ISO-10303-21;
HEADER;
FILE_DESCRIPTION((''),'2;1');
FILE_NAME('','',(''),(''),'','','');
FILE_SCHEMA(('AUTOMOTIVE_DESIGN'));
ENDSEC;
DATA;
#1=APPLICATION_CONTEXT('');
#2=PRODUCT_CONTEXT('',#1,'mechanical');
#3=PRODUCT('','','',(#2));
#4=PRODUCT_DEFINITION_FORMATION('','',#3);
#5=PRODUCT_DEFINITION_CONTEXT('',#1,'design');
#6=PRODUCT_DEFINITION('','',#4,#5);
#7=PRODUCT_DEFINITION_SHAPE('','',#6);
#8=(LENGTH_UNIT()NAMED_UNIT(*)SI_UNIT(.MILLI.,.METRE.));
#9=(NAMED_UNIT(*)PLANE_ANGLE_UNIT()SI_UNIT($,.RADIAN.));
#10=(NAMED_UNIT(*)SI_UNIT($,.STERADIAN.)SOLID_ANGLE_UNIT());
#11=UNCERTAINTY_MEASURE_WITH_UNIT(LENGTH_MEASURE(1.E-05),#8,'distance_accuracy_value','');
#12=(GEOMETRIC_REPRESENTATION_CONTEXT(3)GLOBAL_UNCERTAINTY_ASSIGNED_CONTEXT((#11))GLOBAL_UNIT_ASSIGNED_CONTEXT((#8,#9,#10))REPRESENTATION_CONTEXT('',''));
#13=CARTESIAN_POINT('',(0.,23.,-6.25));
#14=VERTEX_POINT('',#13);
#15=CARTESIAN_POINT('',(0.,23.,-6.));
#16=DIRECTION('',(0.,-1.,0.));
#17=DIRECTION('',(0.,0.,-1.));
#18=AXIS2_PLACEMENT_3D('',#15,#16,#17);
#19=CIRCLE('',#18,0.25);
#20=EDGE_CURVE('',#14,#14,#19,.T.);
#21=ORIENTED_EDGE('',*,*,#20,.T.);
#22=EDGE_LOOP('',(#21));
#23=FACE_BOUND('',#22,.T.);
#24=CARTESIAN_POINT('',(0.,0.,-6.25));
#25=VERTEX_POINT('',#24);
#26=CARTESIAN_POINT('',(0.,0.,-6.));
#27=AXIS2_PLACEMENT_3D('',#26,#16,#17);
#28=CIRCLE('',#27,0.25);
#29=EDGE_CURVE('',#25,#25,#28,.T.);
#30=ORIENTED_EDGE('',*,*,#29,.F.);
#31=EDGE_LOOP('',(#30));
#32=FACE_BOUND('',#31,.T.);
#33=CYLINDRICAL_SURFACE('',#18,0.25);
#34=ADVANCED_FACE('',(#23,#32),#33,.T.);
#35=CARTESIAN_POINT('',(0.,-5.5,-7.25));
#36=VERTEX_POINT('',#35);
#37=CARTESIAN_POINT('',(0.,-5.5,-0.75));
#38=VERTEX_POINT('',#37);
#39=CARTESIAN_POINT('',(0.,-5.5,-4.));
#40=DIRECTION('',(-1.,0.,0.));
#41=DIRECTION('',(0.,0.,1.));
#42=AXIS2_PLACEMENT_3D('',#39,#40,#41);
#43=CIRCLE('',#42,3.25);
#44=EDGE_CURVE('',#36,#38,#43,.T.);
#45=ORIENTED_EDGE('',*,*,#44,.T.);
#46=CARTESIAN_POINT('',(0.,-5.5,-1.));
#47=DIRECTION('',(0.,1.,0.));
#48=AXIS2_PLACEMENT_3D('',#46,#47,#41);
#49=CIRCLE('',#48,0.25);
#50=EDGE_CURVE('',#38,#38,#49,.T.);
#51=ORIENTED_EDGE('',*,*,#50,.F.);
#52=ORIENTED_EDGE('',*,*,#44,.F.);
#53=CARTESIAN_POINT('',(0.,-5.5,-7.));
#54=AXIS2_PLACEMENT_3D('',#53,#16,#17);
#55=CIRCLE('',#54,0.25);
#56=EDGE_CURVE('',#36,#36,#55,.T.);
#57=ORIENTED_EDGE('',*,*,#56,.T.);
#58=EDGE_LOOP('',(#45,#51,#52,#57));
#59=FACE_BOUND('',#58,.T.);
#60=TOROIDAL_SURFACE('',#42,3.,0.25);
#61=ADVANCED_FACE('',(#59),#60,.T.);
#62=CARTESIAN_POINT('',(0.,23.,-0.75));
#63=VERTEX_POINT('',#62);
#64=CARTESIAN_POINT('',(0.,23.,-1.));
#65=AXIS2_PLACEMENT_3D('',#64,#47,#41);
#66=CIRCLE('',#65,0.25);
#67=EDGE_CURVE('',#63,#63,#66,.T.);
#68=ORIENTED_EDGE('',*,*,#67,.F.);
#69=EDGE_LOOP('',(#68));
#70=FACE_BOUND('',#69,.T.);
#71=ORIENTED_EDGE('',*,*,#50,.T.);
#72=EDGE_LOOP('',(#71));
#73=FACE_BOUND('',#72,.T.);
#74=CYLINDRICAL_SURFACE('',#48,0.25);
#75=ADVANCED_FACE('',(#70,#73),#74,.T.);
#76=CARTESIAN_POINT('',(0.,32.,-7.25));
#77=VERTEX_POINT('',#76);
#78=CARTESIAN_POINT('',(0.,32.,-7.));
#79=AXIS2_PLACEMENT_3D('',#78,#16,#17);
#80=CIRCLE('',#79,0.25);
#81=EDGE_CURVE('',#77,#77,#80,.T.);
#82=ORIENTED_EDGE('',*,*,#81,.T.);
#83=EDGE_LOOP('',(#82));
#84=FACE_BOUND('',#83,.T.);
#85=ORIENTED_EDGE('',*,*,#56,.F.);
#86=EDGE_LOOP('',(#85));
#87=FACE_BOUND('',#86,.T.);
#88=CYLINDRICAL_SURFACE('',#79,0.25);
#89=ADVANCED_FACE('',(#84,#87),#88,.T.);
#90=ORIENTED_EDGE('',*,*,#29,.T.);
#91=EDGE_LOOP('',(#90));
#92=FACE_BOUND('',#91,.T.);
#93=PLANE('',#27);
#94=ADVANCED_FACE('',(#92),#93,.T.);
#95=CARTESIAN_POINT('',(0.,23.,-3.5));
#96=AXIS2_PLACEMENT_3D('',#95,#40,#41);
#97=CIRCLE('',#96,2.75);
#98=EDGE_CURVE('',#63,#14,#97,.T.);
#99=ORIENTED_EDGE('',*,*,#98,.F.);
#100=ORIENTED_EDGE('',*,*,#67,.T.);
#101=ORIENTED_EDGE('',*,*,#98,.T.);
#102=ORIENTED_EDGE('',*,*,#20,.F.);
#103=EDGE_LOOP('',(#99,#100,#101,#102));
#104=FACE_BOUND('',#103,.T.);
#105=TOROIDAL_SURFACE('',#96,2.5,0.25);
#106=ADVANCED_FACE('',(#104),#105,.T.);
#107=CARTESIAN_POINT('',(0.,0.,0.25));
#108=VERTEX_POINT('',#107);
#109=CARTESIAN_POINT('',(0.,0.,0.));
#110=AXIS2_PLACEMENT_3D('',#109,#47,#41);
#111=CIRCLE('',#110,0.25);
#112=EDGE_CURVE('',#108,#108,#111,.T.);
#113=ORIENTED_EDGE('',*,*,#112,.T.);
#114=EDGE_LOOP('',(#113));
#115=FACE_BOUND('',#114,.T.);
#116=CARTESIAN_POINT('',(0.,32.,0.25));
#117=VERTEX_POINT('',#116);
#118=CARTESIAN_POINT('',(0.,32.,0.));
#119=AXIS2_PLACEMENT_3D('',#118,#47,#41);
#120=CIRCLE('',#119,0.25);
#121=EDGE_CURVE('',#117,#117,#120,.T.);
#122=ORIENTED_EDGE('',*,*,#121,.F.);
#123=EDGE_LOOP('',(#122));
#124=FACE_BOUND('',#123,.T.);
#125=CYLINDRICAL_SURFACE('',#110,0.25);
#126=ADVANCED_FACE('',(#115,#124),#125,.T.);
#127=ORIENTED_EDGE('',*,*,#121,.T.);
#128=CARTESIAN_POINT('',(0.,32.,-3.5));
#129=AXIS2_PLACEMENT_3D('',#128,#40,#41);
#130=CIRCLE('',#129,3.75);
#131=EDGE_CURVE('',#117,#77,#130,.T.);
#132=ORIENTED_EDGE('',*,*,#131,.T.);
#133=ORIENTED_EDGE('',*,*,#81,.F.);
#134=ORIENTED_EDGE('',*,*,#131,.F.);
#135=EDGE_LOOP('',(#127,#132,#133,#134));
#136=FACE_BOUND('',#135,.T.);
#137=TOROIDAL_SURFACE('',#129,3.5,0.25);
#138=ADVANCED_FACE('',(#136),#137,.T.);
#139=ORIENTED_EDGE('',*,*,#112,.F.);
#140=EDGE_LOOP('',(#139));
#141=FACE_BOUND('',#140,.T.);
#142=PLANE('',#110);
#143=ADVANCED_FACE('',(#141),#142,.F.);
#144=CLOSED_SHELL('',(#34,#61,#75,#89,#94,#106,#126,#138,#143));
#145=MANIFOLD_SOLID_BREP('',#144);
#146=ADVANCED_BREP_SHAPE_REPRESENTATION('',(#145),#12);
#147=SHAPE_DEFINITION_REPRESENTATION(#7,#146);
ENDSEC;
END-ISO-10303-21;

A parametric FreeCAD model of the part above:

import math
import FreeCAD as App
import Part
import Sketcher
from FreeCAD import Vector

doc = App.newDocument("Part")
body = doc.addObject("PartDesign::Body", "Body")

# Sketch on XZ plane
sketch1 = body.newObject("Sketcher::SketchObject", "Sketch")
sketch1.AttachmentSupport = (doc.getObject("XZ_Plane"), [""])
sketch1.MapMode = "FlatFace"
sketch1.addGeometry(Part.Circle(Vector(0, 0, 0), Vector(0, 0, 1), 0.25), False)
sketch1.addConstraint([
    Sketcher.Constraint("Coincident", 0, 3, -1, 1),
    Sketcher.Constraint("Diameter", 0, 0.5),
])

# Sketch on YZ plane
sketch2 = body.newObject("Sketcher::SketchObject", "Sketch001")
sketch2.AttachmentSupport = (doc.getObject("YZ_Plane"), [""])
sketch2.MapMode = "FlatFace"
sketch2.addGeometry([
    Part.LineSegment(Vector(0, 0, 0), Vector(32, 0, 0)),  # 0
    Part.ArcOfCircle(Part.Circle(Vector(32, -3.5, 0), Vector(0, 0, 1), 3.5), math.radians(-90), math.radians(90)),  # 1
    Part.LineSegment(Vector(32, -7, 0), Vector(-5.5, -7, 0)),  # 2
    Part.ArcOfCircle(Part.Circle(Vector(-5.5, -4, 0), Vector(0, 0, 1), 3), math.radians(90), math.radians(270)),  # 3
    Part.LineSegment(Vector(-5.5, -1, 0), Vector(23, -1, 0)),  # 4
    Part.ArcOfCircle(Part.Circle(Vector(23, -3.5, 0), Vector(0, 0, 1), 2.5), math.radians(-90), math.radians(90)),  # 5
    Part.LineSegment(Vector(23, -6, 0), Vector(0, -6, 0)),  # 6
], False)
sketch2.addConstraint([
    Sketcher.Constraint("Tangent", 0, 2, 1, 2),
    Sketcher.Constraint("Tangent", 1, 1, 2, 1),
    Sketcher.Constraint("Tangent", 2, 2, 3, 2),
    Sketcher.Constraint("Tangent", 3, 1, 4, 1),
    Sketcher.Constraint("Tangent", 4, 2, 5, 2),
    Sketcher.Constraint("Tangent", 5, 1, 6, 1),
    Sketcher.Constraint("Horizontal", 0),
    Sketcher.Constraint("Horizontal", 2),
    Sketcher.Constraint("Horizontal", 4),
    Sketcher.Constraint("Horizontal", 6),
    Sketcher.Constraint("Coincident", 0, 1, -1, 1),
    Sketcher.Constraint("PointOnObject", 6, 2, -2),
    Sketcher.Constraint("Horizontal", 1, 3, 5, 3),
    Sketcher.Constraint("Radius", 3, 3.0),
    Sketcher.Constraint("Radius", 1, 3.5),
    Sketcher.Constraint("DistanceX", 0, 1, 0, 2, 32.0),
    Sketcher.Constraint("DistanceX", 6, 2, 6, 1, 23.0),
    Sketcher.Constraint("DistanceX", 2, 2, 2, 1, 37.5),
])
doc.recompute()

additivepipe = body.newObject("PartDesign::AdditivePipe", "AdditivePipe")
additivepipe.Profile = sketch1
additivepipe.Spine = (sketch2, ["Edge1", "Edge2", "Edge3", "Edge4", "Edge5", "Edge6", "Edge7"])

doc.recompute()
